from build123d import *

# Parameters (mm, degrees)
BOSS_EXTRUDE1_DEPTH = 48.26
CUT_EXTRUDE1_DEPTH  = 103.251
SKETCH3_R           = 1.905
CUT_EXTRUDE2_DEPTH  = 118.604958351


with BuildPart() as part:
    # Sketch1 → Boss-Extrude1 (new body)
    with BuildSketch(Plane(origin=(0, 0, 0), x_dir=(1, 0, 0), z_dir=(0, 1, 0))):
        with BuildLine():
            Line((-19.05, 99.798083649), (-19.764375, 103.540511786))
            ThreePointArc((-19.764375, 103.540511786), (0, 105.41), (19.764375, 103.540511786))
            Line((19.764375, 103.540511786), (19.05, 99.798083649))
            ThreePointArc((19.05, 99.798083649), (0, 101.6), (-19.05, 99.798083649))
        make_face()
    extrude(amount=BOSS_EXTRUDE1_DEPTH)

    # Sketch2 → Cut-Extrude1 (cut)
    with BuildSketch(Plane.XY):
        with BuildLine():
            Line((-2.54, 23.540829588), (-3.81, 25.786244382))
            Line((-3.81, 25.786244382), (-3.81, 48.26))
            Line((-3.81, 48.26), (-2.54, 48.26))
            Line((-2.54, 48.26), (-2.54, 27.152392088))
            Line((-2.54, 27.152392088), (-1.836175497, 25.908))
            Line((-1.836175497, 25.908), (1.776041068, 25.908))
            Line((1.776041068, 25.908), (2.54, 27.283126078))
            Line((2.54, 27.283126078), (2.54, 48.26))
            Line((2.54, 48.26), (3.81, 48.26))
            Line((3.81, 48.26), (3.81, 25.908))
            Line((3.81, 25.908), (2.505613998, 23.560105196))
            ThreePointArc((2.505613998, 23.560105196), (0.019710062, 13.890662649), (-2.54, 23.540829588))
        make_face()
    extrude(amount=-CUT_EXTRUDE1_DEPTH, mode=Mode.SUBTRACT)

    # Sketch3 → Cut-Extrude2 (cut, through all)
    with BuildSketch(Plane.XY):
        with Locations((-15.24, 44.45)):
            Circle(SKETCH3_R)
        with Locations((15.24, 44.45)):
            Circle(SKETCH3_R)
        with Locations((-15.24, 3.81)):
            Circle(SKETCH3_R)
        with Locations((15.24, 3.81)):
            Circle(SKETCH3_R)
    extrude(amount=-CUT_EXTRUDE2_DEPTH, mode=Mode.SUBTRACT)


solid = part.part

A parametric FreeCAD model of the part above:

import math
import FreeCAD as App
import Part
import Sketcher

V = App.Vector
Q = App.Units.Quantity

doc = App.newDocument("Part")
body = doc.addObject("PartDesign::Body", "Body")

sketch1 = body.newObject("Sketcher::SketchObject", "Sketch")
sketch1.AttachmentSupport = (doc.getObject("XZ_Plane"), [""])
sketch1.MapMode = "FlatFace"
sketch1.addGeometry([
    Part.LineSegment(V(-19.8, -103.5, 0), V(-19.1, -99.8, 0)),
    Part.ArcOfCircle(Part.Circle(V(0, 0, 0), V(0, 0, 1), 101.6), math.radians(-101), math.radians(-79)),
    Part.LineSegment(V(19.1, -99.8, 0), V(19.8, -103.5, 0)),
    Part.ArcOfCircle(Part.Circle(V(0, 0, 0), V(0, 0, 1), 105.4), math.radians(-101), math.radians(-79)),
], False)
sketch1.addConstraint([
    Sketcher.Constraint("Coincident", 0, 2, 1, 1),
    Sketcher.Constraint("Coincident", 1, 2, 2, 1),
    Sketcher.Constraint("Coincident", 2, 2, 3, 2),
    Sketcher.Constraint("Coincident", 3, 1, 0, 1),
    Sketcher.Constraint("Coincident", 1, 3, -1, 1),
    Sketcher.Constraint("Coincident", 3, 3, -1, 1),
    Sketcher.Constraint("Horizontal", 0, 2, 1, 2),
    Sketcher.Constraint("Horizontal", 2, 2, 3, 1),
    Sketcher.Constraint("Radius", 1, Q("4 in")),
    Sketcher.Constraint("Radius", 3, Q("4.15 in")),
    Sketcher.Constraint("DistanceX", 0, 2, 1, 2, Q("1.5 in")),
    Sketcher.Constraint("DistanceY", 2, 2, -1, 1, 103.540512),
])
pad1 = body.newObject("PartDesign::Pad", "Pad")
pad1.Profile = sketch1
pad1.Length = Q("1.9 in")
pad1.Reversed = True

sketch2 = body.newObject("Sketcher::SketchObject", "Sketch001")
sketch2.AttachmentSupport = (doc.getObject("XY_Plane"), [""])
sketch2.MapMode = "FlatFace"
sketch2.addGeometry([
    Part.LineSegment(V(-3.8, 25.8, 0), V(-2.5, 23.5, 0)),
    Part.ArcOfCircle(Part.Circle(V(0, 19.1, 0), V(0, 0, 1), 5.2), math.radians(119), math.radians(421)),
    Part.LineSegment(V(2.5, 23.6, 0), V(3.8, 25.9, 0)),
    Part.LineSegment(V(3.8, 25.9, 0), V(3.8, 48.3, 0)),
    Part.LineSegment(V(3.8, 48.3, 0), V(2.5, 48.3, 0)),
    Part.LineSegment(V(2.5, 48.3, 0), V(2.5, 27.3, 0)),
    Part.LineSegment(V(2.5, 27.3, 0), V(1.8, 25.9, 0)),
    Part.LineSegment(V(1.8, 25.9, 0), V(-1.8, 25.9, 0)),
    Part.LineSegment(V(-1.8, 25.9, 0), V(-2.5, 27.2, 0)),
    Part.LineSegment(V(-2.5, 27.2, 0), V(-2.5, 48.3, 0)),
    Part.LineSegment(V(-2.5, 48.3, 0), V(-3.8, 48.3, 0)),
    Part.LineSegment(V(-3.8, 48.3, 0), V(-3.8, 25.8, 0)),
], False)
sketch2.addConstraint([
    Sketcher.Constraint("Coincident", 0, 2, 1, 1),
    Sketcher.Constraint("Coincident", 1, 2, 2, 1),
    Sketcher.Constraint("Coincident", 2, 2, 3, 1),
    Sketcher.Constraint("Coincident", 3, 2, 4, 1),
    Sketcher.Constraint("Coincident", 4, 2, 5, 1),
    Sketcher.Constraint("Coincident", 5, 2, 6, 1),
    Sketcher.Constraint("Coincident", 6, 2, 7, 1),
    Sketcher.Constraint("Coincident", 7, 2, 8, 1),
    Sketcher.Constraint("Coincident", 8, 2, 9, 1),
    Sketcher.Constraint("Coincident", 9, 2, 10, 1),
    Sketcher.Constraint("Coincident", 10, 2, 11, 1),
    Sketcher.Constraint("Coincident", 11, 2, 0, 1),
    Sketcher.Constraint("Vertical", 3),
    Sketcher.Constraint("Horizontal", 4),
    Sketcher.Constraint("Vertical", 5),
    Sketcher.Constraint("Horizontal", 7),
    Sketcher.Constraint("Vertical", 9),
    Sketcher.Constraint("Horizontal", 10),
    Sketcher.Constraint("Vertical", 11),
    Sketcher.Constraint("Symmetric", 4, 2, 9, 2, -2),
    Sketcher.Constraint("PointOnObject", 1, 3, -2),
    Sketcher.Constraint("Parallel", 2, 6),
    Sketcher.Constraint("Parallel", 0, 8),
    Sketcher.Constraint("Horizontal", 2, 2, 6, 2),
    Sketcher.Constraint("Vertical", 0, 2, 8, 2),
    Sketcher.Constraint("Equal", 4, 10),
    Sketcher.Constraint("Radius", 1, Q("0.203125 in")),
    Sketcher.Constraint("DistanceX", 4, 2, 4, 1, Q("0.05 in")),
    Sketcher.Constraint("DistanceY", 3, 1, 3, 2, Q("0.88 in")),
    Sketcher.Constraint("DistanceX", 0, 2, -1, 1, Q("0.1 in")),
    Sketcher.Constraint("DistanceY", -1, 1, 3, 2, Q("1.9 in")),
    Sketcher.Constraint("DistanceY", -1, 1, 1, 3, Q("0.75 in")),
    Sketcher.Constraint("DistanceX", 7, 2, 7, 1, 3.612217),
    Sketcher.Constraint("DistanceY", 5, 2, 5, 1, 20.976874),
    Sketcher.Constraint("DistanceY", 9, 1, 9, 2, 21.107608),
    Sketcher.Constraint("DistanceY", 11, 2, 11, 1, 22.473756),
])
pocket1 = body.newObject("PartDesign::Pocket", "Pocket")
pocket1.Profile = sketch2
pocket1.Length = Q("4.065 in")

sketch3 = body.newObject("Sketcher::SketchObject", "Sketch002")
sketch3.AttachmentSupport = (doc.getObject("XY_Plane"), [""])
sketch3.MapMode = "FlatFace"
sketch3.addGeometry([
    Part.Circle(V(-15.2, 44.5, 0), V(0, 0, 1), 1.9),
    Part.Circle(V(15.2, 44.5, 0), V(0, 0, 1), 1.9),
    Part.Circle(V(-15.2, 3.8, 0), V(0, 0, 1), 1.9),
    Part.Circle(V(15.2, 3.8, 0), V(0, 0, 1), 1.9),
], False)
sketch3.addConstraint([
    Sketcher.Constraint("Equal", 0, 1),
    Sketcher.Constraint("Equal", 1, 2),
    Sketcher.Constraint("Equal", 2, 3),
    Sketcher.Constraint("Symmetric", 0, 3, 1, 3, -2),
    Sketcher.Constraint("Symmetric", 2, 3, 3, 3, -2),
    Sketcher.Constraint("Vertical", 0, 3, 2, 3),
    Sketcher.Constraint("Diameter", 0, Q("0.15 in")),
    Sketcher.Constraint("DistanceX", 0, 3, -1, 1, Q("0.6 in")),
    Sketcher.Constraint("DistanceY", 2, 3, 0, 3, Q("1.6 in")),
    Sketcher.Constraint("DistanceY", -1, 1, 0, 3, Q("1.75 in")),
])
pocket2 = body.newObject("PartDesign::Pocket", "Pocket001")
pocket2.Profile = sketch3
pocket2.Type = "ThroughAll"

doc.recompute()
